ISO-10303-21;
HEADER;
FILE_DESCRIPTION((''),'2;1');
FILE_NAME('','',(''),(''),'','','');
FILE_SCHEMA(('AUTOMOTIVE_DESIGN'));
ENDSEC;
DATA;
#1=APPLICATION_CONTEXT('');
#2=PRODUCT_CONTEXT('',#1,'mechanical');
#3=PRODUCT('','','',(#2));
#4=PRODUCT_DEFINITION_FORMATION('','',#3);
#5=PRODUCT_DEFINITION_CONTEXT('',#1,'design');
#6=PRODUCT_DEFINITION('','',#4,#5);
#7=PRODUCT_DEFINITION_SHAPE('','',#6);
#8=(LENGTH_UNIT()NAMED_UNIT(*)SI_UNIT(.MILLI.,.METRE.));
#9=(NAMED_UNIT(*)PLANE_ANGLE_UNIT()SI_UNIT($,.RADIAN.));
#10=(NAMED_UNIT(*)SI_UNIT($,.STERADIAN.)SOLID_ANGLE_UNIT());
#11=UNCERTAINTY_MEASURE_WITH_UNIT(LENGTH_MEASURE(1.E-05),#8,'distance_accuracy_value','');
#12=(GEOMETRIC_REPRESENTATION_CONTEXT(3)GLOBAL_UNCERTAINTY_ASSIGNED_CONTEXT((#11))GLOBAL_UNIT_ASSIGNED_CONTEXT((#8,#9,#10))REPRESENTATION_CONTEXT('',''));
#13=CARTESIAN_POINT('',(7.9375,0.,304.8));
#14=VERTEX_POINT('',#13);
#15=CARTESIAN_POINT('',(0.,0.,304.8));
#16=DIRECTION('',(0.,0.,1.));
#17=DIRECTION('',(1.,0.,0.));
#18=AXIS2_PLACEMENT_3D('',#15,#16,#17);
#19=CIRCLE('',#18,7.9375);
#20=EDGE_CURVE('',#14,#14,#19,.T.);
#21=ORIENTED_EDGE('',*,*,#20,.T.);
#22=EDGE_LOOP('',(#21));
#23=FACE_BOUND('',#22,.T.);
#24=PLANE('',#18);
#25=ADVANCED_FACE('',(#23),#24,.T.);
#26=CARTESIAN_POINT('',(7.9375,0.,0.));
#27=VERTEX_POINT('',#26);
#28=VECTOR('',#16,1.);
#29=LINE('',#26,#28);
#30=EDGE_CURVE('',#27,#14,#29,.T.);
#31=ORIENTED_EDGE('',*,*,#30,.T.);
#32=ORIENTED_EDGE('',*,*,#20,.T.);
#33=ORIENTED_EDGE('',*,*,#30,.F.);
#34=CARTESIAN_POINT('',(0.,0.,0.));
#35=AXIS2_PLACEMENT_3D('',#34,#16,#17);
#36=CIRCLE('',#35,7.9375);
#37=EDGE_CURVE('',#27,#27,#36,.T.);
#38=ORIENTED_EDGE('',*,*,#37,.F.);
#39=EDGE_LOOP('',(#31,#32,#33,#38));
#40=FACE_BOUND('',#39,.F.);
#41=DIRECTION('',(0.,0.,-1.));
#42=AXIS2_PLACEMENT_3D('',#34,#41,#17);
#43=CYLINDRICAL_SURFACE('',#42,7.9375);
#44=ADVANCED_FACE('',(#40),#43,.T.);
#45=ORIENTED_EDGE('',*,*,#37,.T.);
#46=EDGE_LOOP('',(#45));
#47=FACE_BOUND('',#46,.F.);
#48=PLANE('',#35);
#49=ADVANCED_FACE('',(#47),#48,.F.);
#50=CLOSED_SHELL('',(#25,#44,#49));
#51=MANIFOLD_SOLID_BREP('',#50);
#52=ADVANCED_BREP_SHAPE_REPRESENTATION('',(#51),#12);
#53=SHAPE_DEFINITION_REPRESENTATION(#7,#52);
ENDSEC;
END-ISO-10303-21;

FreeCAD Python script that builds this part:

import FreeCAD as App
import Part
import Sketcher
from FreeCAD import Vector
Q = App.Units.Quantity

doc = App.newDocument("Part")
params = doc.addObject("Spreadsheet::Sheet", "Params")
for row, (alias, value) in enumerate([
    ("sketch1_diameter", "0.625 in"),
    ("pad1_length", "12 in"),
], start=1):
    params.set(f"A{row}", alias)
    params.set(f"B{row}", "=" + value)
    params.setAlias(f"B{row}", alias)

body = doc.addObject("PartDesign::Body", "Body")

# Sketch on XY plane
sketch1 = doc.addObject("Sketcher::SketchObject", "Sketch")
body.addObject(sketch1)
sketch1.AttachmentSupport = (doc.XY_Plane, [""])
sketch1.MapMode = "FlatFace"
sketch1.addGeometry(Part.Circle(Vector(0, 0, 0), Vector(0, 0, 1), 8), False)
sketch1.addConstraint([
    Sketcher.Constraint("Coincident", 0, 3, -1, 1),
    Sketcher.Constraint("Diameter", 0, Q("0.625 in")),
])
sketch1.setExpression("Constraints[1]", "Params.sketch1_diameter")
pad1 = doc.addObject("PartDesign::Pad", "Pad")
body.addObject(pad1)
pad1.Profile = sketch1
pad1.setExpression("Length", "Params.pad1_length")

doc.recompute()
